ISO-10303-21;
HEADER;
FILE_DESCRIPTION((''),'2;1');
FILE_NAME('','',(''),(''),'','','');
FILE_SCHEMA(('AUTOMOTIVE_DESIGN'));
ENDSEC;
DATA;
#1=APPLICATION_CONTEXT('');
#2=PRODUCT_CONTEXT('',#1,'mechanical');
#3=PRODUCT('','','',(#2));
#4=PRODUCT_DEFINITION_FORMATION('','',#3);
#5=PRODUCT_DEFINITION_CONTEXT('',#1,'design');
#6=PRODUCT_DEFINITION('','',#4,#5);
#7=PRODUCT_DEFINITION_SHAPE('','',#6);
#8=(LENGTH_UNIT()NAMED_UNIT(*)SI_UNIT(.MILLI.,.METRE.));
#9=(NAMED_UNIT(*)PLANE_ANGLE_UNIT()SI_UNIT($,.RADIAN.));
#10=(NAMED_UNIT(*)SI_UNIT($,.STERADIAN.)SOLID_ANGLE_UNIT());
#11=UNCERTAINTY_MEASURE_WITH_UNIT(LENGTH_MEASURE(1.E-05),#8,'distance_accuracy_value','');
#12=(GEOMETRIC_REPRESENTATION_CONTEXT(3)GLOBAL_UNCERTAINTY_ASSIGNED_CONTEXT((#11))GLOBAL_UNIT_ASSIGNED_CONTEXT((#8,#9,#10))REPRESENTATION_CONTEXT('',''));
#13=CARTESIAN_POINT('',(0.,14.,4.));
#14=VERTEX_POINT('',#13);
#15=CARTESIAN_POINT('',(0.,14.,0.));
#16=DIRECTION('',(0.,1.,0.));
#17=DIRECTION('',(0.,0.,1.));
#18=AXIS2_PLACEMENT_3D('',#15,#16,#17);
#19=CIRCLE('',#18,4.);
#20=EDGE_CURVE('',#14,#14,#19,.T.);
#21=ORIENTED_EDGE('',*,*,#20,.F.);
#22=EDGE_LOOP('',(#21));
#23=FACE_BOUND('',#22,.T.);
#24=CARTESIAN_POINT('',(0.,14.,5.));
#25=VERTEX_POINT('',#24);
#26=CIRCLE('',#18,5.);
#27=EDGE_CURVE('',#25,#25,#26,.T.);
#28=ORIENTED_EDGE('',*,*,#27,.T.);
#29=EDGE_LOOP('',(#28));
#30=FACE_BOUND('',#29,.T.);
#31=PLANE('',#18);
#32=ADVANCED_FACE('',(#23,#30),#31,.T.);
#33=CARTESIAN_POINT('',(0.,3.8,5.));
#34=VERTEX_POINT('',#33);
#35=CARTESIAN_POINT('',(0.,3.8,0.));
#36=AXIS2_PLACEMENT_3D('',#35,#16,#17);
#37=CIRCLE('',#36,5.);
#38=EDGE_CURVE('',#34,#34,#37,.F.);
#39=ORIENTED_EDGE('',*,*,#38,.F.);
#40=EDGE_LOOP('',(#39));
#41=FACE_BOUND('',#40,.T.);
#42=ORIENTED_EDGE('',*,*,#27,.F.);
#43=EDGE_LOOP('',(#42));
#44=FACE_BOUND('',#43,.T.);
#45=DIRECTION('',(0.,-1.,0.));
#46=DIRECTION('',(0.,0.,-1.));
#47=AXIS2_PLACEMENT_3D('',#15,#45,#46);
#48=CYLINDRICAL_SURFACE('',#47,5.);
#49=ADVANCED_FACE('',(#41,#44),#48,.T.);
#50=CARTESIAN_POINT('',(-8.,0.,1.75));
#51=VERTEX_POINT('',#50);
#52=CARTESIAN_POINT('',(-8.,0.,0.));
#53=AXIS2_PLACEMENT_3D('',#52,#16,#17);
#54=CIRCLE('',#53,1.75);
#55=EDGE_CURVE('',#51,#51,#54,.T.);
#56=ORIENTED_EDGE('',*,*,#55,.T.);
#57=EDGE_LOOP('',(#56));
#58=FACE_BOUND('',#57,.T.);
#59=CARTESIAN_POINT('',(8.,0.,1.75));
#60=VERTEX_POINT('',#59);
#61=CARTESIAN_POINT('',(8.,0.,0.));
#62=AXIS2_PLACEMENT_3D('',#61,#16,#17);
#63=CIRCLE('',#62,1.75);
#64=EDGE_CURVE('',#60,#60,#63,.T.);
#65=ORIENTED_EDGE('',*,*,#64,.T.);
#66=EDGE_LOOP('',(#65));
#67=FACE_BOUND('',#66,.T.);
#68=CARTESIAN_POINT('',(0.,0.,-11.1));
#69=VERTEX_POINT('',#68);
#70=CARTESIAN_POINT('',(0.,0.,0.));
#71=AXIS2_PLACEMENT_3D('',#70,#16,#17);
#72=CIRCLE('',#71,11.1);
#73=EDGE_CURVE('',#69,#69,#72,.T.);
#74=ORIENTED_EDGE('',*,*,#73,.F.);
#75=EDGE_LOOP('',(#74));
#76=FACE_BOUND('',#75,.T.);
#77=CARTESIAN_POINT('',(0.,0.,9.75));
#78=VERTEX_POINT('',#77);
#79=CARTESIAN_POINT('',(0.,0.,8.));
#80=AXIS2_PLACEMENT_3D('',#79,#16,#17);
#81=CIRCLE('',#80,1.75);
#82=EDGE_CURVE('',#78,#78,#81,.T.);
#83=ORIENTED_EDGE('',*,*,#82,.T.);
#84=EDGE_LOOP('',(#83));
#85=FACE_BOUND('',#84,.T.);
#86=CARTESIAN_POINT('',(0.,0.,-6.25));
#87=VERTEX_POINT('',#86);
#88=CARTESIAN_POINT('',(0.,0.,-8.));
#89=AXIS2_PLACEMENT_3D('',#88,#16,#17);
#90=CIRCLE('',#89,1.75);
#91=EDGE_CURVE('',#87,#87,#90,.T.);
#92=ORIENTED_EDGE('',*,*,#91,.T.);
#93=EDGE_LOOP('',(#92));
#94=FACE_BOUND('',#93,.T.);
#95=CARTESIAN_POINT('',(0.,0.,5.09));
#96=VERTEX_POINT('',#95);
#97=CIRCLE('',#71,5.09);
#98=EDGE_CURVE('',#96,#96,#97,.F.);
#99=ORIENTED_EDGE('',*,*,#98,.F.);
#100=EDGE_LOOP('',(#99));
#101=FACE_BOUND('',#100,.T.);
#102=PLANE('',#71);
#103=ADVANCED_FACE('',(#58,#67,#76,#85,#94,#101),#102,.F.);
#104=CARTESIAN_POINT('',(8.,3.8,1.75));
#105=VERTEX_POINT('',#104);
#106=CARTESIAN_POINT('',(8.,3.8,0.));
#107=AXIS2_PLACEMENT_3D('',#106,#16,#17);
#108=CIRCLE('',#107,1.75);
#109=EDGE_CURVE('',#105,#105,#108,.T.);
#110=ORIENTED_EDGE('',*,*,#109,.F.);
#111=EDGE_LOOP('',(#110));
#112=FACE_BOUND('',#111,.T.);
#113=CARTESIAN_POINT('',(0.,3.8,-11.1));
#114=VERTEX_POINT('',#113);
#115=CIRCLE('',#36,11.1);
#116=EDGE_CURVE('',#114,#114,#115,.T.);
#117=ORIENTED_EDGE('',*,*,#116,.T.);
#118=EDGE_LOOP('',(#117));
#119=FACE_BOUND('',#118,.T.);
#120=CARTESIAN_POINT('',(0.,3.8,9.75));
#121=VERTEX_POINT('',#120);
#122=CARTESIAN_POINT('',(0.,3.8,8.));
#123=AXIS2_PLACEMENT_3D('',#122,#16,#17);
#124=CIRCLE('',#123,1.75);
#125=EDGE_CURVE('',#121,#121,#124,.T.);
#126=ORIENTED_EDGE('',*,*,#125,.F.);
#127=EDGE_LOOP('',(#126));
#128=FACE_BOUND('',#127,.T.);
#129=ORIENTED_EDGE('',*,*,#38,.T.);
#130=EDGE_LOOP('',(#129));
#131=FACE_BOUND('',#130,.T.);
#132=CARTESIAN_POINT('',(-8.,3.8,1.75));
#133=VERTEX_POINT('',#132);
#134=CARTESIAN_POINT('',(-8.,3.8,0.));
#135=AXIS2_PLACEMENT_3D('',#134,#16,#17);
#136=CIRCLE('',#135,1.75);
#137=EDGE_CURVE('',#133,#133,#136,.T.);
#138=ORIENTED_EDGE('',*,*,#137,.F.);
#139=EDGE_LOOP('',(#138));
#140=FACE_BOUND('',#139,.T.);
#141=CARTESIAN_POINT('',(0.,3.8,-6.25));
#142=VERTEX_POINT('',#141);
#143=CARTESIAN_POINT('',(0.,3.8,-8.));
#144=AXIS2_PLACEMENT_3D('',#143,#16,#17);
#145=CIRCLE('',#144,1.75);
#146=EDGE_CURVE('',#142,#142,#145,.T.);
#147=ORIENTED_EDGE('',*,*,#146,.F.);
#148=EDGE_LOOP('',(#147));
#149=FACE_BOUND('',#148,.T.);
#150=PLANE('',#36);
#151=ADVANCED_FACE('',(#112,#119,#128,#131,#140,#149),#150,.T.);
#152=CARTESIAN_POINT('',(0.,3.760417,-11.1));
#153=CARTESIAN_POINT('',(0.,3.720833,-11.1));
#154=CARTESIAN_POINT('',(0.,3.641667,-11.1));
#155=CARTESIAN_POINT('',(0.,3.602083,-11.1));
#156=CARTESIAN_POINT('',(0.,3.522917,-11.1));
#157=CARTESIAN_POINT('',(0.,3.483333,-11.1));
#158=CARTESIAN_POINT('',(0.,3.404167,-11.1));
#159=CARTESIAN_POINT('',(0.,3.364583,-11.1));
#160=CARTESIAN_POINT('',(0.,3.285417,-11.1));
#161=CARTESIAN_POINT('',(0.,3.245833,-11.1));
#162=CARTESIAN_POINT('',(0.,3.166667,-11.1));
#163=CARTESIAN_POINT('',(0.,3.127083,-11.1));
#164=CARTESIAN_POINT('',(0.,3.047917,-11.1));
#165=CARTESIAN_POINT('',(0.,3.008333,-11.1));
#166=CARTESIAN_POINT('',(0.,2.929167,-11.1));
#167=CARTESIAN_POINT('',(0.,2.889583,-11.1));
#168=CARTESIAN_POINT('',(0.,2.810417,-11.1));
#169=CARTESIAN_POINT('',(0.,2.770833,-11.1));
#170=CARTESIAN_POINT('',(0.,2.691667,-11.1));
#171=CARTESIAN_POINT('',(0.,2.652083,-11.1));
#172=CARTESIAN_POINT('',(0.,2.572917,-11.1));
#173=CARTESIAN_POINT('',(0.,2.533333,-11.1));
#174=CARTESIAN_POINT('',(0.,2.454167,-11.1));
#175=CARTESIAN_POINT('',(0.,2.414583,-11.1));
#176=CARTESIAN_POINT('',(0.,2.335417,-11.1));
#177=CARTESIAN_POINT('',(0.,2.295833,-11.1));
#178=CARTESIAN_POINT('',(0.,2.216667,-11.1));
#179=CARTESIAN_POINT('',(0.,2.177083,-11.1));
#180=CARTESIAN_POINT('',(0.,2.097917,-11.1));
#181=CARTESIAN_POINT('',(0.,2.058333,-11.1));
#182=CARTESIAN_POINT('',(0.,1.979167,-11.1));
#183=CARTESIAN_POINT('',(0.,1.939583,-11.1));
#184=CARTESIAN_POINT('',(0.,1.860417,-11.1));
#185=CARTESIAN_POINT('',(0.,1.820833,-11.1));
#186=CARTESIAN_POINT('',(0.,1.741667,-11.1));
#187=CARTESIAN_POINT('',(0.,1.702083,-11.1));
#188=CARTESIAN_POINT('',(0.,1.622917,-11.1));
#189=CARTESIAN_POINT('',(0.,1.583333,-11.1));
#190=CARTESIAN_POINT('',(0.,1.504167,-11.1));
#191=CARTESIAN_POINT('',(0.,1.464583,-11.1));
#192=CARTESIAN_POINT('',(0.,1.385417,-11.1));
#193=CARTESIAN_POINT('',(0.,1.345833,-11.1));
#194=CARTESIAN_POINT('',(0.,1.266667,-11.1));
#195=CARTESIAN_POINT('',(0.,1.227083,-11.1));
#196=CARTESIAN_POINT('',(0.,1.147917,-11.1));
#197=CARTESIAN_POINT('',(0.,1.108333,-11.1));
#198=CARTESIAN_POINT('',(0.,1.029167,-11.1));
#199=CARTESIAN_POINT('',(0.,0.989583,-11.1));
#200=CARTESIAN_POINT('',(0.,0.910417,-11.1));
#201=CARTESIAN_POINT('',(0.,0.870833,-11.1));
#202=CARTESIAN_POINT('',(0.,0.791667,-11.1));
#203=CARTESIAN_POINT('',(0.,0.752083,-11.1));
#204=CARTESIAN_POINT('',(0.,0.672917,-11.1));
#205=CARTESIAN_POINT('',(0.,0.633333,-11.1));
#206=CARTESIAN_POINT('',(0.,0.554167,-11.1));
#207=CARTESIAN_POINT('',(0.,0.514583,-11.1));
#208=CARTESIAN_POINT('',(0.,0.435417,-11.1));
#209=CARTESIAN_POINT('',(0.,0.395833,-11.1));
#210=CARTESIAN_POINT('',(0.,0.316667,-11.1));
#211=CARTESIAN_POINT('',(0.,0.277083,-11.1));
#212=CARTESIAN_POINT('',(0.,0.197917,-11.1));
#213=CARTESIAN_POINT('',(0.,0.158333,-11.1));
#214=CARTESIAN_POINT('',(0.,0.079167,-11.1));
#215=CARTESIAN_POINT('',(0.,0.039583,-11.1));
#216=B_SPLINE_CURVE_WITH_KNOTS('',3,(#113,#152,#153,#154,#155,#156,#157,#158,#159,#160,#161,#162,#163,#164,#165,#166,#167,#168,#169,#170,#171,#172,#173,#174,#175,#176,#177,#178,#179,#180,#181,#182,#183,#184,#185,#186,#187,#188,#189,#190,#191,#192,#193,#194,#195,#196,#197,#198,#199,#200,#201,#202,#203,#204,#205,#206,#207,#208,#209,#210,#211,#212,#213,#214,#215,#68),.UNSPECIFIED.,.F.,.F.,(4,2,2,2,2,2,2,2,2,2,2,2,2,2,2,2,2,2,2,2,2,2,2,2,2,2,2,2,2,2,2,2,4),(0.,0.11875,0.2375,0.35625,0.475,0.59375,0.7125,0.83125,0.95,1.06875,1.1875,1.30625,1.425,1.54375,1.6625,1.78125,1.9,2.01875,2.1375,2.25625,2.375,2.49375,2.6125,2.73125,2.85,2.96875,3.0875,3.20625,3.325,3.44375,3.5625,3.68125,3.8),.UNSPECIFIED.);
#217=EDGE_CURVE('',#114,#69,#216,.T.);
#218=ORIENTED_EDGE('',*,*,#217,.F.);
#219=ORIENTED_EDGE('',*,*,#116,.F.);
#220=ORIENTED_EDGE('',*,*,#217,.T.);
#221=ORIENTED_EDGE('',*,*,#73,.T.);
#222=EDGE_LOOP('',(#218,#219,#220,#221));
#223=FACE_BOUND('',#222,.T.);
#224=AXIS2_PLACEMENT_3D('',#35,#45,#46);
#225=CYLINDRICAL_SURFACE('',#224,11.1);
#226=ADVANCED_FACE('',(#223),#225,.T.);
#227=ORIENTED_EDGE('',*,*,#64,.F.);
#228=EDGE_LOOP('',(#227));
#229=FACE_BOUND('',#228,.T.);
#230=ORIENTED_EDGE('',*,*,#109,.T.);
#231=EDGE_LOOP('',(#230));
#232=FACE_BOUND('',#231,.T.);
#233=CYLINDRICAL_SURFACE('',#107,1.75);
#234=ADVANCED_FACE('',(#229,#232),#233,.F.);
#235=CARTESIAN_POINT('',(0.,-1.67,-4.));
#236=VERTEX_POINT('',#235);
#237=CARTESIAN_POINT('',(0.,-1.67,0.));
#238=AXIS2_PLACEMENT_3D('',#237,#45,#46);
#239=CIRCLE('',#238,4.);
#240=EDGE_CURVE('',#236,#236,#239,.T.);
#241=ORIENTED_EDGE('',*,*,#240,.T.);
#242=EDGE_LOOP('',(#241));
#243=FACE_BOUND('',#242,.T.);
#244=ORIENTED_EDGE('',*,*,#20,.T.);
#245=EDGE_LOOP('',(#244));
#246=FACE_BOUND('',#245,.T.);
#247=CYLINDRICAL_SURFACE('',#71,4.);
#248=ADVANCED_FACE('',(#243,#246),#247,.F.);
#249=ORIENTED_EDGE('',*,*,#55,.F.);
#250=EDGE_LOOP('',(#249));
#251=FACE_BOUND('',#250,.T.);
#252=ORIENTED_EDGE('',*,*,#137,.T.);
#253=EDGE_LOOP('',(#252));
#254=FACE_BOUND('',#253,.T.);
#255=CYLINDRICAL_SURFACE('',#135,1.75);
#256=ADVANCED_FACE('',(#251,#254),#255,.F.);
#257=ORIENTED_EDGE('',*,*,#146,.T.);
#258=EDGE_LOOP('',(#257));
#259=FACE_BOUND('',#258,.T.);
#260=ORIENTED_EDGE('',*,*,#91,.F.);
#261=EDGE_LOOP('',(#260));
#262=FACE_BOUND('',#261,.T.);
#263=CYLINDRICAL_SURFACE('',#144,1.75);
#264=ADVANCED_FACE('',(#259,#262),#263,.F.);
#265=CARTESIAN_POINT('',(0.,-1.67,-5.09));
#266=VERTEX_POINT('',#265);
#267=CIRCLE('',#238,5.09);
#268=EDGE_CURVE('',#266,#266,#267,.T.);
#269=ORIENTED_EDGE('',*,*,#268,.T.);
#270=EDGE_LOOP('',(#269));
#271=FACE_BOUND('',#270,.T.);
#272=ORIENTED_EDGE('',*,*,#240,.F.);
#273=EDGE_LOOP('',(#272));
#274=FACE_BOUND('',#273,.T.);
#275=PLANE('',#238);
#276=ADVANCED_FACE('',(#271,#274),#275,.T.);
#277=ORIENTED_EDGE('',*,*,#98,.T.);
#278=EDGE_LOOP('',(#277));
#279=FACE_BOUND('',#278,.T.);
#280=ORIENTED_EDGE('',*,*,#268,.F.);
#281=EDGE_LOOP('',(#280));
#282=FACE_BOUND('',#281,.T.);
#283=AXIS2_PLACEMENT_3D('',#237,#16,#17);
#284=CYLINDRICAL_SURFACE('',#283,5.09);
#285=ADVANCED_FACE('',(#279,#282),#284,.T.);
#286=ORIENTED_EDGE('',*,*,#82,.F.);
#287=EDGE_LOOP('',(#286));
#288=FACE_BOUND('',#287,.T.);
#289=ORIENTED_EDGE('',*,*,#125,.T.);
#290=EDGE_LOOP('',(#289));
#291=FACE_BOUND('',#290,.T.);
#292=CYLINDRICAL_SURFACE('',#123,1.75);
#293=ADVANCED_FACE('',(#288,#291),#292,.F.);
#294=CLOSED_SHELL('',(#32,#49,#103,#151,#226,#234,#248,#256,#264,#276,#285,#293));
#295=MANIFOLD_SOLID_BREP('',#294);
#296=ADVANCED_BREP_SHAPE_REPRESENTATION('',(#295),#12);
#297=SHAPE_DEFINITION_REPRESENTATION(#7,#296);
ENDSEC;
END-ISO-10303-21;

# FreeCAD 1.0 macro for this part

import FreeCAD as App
import Part
import Sketcher
from FreeCAD import Vector
Q = App.Units.Quantity

doc = App.newDocument("Part")
params = doc.addObject("Spreadsheet::Sheet", "Params")
for row, (alias, value) in enumerate([
    ("sketch1_diameter", "22.2 mm"),
    ("pad1_length", "3.8 mm"),
    ("sketch2_diameter", "10 mm"),
    ("pad2_length", "14 mm"),
    ("sketch3_diameter", "8 mm"),
    ("sketch4_diameter", "8 mm"),
    ("sketch4_diameter2", "10.18 mm"),
    ("pad3_length", "1.67 mm"),
    ("sketch5_diameter", "3.5 mm"),
    ("hole_diameter", "3.5 mm"),
], start=1):
    params.set(f"A{row}", alias)
    params.set(f"B{row}", "=" + value)
    params.setAlias(f"B{row}", alias)

body = doc.addObject("PartDesign::Body", "Body")

sketch1 = body.newObject("Sketcher::SketchObject", "Sketch")
sketch1.AttachmentSupport = (doc.getObject("XZ_Plane"), [""])
sketch1.MapMode = "FlatFace"
sketch1.addGeometry(Part.Circle(Vector(0, 0, 0), Vector(0, 0, 1), 11), False)
sketch1.addConstraint([
    Sketcher.Constraint("Coincident", 0, 3, -1, 1),
    Sketcher.Constraint("Diameter", 0, Q("22.2 mm")),
])
sketch1.setExpression("Constraints[1]", "Params.sketch1_diameter")
pad1 = body.newObject("PartDesign::Pad", "Pad")
pad1.Profile = sketch1
pad1.setExpression("Length", "Params.pad1_length")
pad1.Reversed = True

sketch2 = body.newObject("Sketcher::SketchObject", "Sketch001")
sketch2.AttachmentSupport = (doc.getObject("XZ_Plane"), [""])
sketch2.MapMode = "FlatFace"
sketch2.addGeometry(Part.Circle(Vector(0, 0, 0), Vector(0, 0, 1), 5), False)
sketch2.addConstraint([
    Sketcher.Constraint("Coincident", 0, 3, -1, 1),
    Sketcher.Constraint("Diameter", 0, Q("10 mm")),
])
sketch2.setExpression("Constraints[1]", "Params.sketch2_diameter")
pad2 = body.newObject("PartDesign::Pad", "Pad001")
pad2.Profile = sketch2
pad2.setExpression("Length", "Params.pad2_length")
pad2.Reversed = True

sketch3 = body.newObject("Sketcher::SketchObject", "Sketch002")
sketch3.AttachmentSupport = (doc.getObject("XZ_Plane"), [""])
sketch3.MapMode = "FlatFace"
sketch3.AttachmentOffset = App.Placement(Vector(0, 0, -14), App.Rotation())
sketch3.addGeometry(Part.Circle(Vector(0, 0, 0), Vector(0, 0, 1), 4), False)
sketch3.addConstraint([
    Sketcher.Constraint("Coincident", 0, 3, -1, 1),
    Sketcher.Constraint("Diameter", 0, Q("8 mm")),
])
sketch3.setExpression("Constraints[1]", "Params.sketch3_diameter")
pocket1 = body.newObject("PartDesign::Pocket", "Pocket")
pocket1.Profile = sketch3
pocket1.Type = "ThroughAll"
pocket1.Reversed = True

sketch4 = body.newObject("Sketcher::SketchObject", "Sketch003")
sketch4.AttachmentSupport = (doc.getObject("XZ_Plane"), [""])
sketch4.MapMode = "FlatFace"
sketch4.addGeometry([
    Part.Circle(Vector(0, 0, 0), Vector(0, 0, 1), 5.1),
    Part.Circle(Vector(0, 0, 0), Vector(0, 0, 1), 4),
], False)
sketch4.addConstraint([
    Sketcher.Constraint("Coincident", 0, 3, -1, 1),
    Sketcher.Constraint("Coincident", 1, 3, -1, 1),
    Sketcher.Constraint("Diameter", 1, Q("8 mm")),
    Sketcher.Constraint("Diameter", 0, Q("10.18 mm")),
])
sketch4.setExpression("Constraints[2]", "Params.sketch4_diameter")
sketch4.setExpression("Constraints[3]", "Params.sketch4_diameter2")
pad3 = body.newObject("PartDesign::Pad", "Pad002")
pad3.Profile = sketch4
pad3.setExpression("Length", "Params.pad3_length")

sketch5 = body.newObject("Sketcher::SketchObject", "Sketch004")
sketch5.AttachmentSupport = (doc.getObject("XZ_Plane"), [""])
sketch5.MapMode = "FlatFace"
sketch5.AttachmentOffset = App.Placement(Vector(0, 0, -3.8), App.Rotation())
sketch5.addGeometry([
    Part.Circle(Vector(0, -8, 0), Vector(0, 0, 1), 1.8),
    Part.Circle(Vector(0, 8, 0), Vector(0, 0, 1), 1.8),
    Part.Circle(Vector(8, 0, 0), Vector(0, 0, 1), 1.8),
    Part.Circle(Vector(-8, 0, 0), Vector(0, 0, 1), 1.8),
], False)
sketch5.addConstraint([
    Sketcher.Constraint("Equal", 0, 1),
    Sketcher.Constraint("Equal", 1, 2),
    Sketcher.Constraint("Equal", 2, 3),
    Sketcher.Constraint("Symmetric", 0, 3, 1, 3, -1, 1),
    Sketcher.Constraint("Symmetric", 2, 3, 3, 3, -1, 1),
    Sketcher.Constraint("PointOnObject", 0, 3, -2),
    Sketcher.Constraint("PointOnObject", 2, 3, -1),
    Sketcher.Constraint("Diameter", 0, Q("3.5 mm")),
    Sketcher.Constraint("DistanceY", 0, 3, -1, 1, Q("8 mm")),
    Sketcher.Constraint("DistanceX", -1, 1, 2, 3, Q("8 mm")),
])
sketch5.setExpression("Constraints[7]", "Params.sketch5_diameter")
doc.recompute()
hole = body.newObject("PartDesign::Hole", "Hole")
hole.Profile = sketch5
hole.ThreadType = "None"
hole.setExpression("Diameter", "Params.hole_diameter")
hole.DepthType = "ThroughAll"
hole.Reversed = True

doc.recompute()
